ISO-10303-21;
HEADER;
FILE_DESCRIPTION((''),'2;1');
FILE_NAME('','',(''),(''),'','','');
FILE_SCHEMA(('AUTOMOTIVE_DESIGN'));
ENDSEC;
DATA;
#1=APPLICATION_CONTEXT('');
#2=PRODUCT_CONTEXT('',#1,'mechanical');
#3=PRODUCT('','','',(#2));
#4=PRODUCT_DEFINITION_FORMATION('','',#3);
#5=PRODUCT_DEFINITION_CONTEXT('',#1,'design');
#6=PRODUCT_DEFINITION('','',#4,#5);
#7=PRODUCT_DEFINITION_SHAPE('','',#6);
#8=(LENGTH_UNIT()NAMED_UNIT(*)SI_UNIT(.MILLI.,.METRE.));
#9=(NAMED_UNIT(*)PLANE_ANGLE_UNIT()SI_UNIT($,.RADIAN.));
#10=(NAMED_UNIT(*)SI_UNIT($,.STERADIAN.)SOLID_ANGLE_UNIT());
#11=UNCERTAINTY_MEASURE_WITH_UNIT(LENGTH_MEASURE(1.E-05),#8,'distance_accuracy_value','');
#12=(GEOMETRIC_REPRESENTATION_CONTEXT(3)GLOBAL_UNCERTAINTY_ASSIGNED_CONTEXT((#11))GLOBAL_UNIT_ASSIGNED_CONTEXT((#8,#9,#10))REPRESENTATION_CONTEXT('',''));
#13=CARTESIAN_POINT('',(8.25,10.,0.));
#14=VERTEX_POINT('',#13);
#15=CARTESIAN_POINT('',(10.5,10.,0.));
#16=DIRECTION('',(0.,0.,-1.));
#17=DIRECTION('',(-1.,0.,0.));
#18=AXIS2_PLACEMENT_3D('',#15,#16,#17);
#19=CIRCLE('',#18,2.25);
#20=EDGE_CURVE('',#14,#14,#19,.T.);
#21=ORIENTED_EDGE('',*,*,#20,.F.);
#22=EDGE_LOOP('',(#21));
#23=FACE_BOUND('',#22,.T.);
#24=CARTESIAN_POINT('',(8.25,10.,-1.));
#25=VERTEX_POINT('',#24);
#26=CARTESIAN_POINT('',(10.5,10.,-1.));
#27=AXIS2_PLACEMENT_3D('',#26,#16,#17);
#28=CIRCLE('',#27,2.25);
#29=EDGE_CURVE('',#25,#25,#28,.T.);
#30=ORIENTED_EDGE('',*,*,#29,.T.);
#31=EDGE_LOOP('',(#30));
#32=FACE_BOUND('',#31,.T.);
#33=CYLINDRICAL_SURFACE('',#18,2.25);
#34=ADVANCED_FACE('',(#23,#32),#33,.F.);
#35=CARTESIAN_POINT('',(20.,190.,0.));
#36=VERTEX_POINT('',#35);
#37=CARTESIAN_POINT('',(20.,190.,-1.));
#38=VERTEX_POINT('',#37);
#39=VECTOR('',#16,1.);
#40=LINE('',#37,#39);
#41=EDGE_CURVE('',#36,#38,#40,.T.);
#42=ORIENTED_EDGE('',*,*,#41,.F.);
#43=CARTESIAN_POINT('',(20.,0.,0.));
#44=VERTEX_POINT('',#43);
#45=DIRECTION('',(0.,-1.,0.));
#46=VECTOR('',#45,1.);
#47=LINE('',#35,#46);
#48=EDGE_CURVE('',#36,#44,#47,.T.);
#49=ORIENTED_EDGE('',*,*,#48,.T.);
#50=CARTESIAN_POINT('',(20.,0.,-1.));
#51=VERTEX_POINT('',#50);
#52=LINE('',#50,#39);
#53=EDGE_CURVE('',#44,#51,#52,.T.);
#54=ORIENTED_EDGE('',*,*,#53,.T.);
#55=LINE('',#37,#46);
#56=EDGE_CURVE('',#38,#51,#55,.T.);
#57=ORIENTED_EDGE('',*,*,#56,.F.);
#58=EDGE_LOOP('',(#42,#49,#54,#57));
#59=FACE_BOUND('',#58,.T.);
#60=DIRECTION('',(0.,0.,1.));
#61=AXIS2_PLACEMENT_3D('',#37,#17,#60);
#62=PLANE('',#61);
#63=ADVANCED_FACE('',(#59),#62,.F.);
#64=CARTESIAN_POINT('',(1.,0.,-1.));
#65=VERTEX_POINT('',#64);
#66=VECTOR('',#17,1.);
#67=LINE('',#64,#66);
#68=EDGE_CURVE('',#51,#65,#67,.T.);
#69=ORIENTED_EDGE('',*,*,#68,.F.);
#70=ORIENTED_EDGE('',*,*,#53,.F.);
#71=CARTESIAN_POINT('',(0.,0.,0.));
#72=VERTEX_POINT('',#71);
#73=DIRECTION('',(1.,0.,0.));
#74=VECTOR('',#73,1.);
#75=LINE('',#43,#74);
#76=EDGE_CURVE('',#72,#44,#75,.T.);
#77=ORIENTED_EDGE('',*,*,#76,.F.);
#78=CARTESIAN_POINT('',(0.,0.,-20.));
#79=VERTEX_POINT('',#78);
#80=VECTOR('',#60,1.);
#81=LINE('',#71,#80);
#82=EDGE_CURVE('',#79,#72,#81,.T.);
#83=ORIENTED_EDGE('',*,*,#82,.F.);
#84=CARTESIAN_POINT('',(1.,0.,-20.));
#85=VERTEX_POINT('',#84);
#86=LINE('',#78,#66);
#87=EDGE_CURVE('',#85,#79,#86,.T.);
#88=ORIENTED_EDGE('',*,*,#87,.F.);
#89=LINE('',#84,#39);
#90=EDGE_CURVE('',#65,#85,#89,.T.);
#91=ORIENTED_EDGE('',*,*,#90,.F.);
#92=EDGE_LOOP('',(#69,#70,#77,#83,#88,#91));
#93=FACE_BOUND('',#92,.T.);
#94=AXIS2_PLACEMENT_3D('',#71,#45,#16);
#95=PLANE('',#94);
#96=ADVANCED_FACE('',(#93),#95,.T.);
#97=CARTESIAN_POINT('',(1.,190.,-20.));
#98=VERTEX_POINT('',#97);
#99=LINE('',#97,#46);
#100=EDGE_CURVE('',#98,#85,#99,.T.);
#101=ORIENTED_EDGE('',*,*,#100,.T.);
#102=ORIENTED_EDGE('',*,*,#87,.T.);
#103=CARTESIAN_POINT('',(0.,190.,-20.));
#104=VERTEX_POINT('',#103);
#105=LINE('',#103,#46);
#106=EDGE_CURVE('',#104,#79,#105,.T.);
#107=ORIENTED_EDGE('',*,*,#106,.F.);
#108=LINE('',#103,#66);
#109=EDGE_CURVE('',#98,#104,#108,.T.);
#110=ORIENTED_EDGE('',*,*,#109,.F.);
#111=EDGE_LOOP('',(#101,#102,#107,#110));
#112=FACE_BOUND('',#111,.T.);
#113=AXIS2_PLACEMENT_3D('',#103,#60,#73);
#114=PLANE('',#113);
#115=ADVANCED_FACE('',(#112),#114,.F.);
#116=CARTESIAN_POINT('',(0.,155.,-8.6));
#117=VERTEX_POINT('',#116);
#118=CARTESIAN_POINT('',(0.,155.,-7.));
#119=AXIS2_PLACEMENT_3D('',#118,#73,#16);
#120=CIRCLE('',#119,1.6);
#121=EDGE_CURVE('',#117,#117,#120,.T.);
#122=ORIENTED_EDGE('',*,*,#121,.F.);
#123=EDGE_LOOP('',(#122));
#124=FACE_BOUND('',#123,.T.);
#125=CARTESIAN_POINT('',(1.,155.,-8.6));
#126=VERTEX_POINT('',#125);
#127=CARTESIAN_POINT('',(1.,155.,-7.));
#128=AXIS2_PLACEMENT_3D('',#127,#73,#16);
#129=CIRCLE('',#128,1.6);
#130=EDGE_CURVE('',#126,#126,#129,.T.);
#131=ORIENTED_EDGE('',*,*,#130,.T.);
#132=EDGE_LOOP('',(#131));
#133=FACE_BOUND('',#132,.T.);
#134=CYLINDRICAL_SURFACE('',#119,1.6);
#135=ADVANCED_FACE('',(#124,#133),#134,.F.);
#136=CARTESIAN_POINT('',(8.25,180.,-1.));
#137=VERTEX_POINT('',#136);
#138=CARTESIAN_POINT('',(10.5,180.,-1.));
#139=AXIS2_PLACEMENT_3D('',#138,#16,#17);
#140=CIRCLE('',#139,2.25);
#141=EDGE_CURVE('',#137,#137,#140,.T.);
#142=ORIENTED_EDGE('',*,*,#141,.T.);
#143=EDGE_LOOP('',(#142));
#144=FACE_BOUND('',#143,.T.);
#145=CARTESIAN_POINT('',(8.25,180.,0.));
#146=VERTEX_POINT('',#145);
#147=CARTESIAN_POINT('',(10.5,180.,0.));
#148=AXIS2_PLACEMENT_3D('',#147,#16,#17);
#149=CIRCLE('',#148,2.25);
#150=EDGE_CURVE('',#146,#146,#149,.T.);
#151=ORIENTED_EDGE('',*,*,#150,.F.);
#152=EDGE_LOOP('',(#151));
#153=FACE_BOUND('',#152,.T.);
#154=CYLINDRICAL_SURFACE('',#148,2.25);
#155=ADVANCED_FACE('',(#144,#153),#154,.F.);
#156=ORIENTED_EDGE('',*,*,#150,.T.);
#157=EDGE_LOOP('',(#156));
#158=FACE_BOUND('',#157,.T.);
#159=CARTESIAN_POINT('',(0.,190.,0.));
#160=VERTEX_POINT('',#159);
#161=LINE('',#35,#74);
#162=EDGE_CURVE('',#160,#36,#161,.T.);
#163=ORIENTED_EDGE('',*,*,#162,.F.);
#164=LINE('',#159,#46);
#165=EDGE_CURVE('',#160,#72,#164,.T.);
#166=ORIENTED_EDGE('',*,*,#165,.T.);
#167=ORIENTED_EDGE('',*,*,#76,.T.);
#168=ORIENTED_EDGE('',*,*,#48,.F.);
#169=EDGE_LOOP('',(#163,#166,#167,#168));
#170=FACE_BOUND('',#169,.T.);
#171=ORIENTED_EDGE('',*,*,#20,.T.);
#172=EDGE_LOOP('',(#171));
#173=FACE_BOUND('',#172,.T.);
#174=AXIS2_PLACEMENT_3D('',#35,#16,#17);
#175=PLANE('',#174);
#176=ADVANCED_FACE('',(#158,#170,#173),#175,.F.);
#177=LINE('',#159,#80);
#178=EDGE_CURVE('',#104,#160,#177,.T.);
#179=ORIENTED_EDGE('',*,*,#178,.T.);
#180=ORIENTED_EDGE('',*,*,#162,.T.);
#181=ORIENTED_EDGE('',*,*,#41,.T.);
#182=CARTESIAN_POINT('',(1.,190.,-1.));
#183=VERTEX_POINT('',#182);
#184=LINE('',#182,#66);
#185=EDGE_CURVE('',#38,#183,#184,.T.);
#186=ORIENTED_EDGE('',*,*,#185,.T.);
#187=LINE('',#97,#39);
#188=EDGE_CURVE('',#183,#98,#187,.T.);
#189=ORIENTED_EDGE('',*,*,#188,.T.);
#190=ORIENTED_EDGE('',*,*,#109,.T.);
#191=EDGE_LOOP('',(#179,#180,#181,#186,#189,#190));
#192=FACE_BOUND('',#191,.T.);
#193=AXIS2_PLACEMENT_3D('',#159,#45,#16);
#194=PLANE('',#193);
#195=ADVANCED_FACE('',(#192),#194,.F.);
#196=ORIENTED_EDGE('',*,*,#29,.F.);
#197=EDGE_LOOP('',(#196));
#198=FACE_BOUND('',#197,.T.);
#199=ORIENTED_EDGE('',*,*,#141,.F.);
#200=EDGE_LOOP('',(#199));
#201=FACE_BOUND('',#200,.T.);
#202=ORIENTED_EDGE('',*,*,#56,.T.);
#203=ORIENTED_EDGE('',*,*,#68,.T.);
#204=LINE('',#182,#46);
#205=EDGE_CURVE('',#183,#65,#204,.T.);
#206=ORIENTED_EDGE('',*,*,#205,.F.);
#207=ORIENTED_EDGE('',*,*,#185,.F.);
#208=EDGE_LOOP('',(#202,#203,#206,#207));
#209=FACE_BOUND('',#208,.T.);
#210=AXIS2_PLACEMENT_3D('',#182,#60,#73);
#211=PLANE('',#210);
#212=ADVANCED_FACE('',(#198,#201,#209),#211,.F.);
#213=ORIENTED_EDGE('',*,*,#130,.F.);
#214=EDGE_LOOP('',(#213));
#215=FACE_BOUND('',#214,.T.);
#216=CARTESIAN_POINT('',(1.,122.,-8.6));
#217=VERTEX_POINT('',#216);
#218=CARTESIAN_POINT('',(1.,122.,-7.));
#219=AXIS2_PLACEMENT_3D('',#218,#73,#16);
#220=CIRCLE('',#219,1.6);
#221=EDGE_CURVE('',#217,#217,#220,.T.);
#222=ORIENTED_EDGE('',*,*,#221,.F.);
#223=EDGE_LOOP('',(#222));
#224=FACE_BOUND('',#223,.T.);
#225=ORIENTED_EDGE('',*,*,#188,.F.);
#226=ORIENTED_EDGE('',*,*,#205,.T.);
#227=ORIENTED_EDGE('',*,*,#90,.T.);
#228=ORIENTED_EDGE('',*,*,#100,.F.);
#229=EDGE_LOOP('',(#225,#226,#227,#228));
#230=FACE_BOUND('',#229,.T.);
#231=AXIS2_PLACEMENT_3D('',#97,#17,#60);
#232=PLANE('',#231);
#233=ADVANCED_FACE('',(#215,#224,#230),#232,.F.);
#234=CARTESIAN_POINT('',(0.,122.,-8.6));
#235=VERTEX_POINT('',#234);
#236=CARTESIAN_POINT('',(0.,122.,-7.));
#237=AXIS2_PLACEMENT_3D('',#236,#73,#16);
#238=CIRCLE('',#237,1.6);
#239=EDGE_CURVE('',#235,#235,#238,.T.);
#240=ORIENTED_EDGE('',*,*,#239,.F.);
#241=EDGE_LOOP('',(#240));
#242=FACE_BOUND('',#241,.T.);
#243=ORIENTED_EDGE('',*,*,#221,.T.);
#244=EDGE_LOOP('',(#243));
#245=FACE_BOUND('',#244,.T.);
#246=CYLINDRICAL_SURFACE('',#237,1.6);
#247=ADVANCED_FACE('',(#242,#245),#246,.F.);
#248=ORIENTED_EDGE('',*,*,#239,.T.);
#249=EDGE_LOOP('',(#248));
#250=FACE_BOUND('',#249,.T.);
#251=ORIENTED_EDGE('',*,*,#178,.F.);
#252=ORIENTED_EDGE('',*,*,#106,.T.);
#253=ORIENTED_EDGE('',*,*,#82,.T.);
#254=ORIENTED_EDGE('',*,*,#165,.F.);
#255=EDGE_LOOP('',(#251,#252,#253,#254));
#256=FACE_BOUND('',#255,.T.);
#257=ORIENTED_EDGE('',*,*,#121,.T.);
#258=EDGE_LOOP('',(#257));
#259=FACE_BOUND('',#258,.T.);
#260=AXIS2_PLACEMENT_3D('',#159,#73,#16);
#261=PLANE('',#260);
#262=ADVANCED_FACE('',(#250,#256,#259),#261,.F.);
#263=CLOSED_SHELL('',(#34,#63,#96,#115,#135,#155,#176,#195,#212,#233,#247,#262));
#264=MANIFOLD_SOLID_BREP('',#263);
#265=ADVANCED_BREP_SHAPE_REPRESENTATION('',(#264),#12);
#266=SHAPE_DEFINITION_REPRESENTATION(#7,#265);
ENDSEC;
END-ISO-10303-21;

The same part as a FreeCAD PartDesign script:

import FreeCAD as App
import Part
import Sketcher


def add_polygon(sketch, points):
    """Adds a closed chain of lines whose ends are joined by coincident constraints."""
    first, n = sketch.GeometryCount, len(points)
    for a, b in zip(points, points[1:] + points[:1]):
        sketch.addGeometry(Part.LineSegment(App.Vector(*a, 0), App.Vector(*b, 0)), False)
    for i in range(n):
        sketch.addConstraint(Sketcher.Constraint("Coincident", first + i, 2, first + (i + 1) % n, 1))

doc = App.newDocument("Part")
body = doc.addObject("PartDesign::Body", "Body")

# Sketch on XZ plane
sketch1 = doc.addObject("Sketcher::SketchObject", "Sketch")
body.addObject(sketch1)
sketch1.AttachmentSupport = (doc.XZ_Plane, [""])
sketch1.MapMode = "FlatFace"
add_polygon(sketch1, [(0, -20), (0, 0), (20, 0), (20, -1), (1, -1), (1, -20)])  # lines 0-5
sketch1.addConstraint(Sketcher.Constraint("Vertical", 0))
sketch1.addConstraint(Sketcher.Constraint("Horizontal", 1))
sketch1.addConstraint(Sketcher.Constraint("Vertical", 2))
sketch1.addConstraint(Sketcher.Constraint("Horizontal", 3))
sketch1.addConstraint(Sketcher.Constraint("Vertical", 4))
sketch1.addConstraint(Sketcher.Constraint("Horizontal", 5))
sketch1.addConstraint(Sketcher.Constraint("Coincident", 0, 2, -1, 1))
sketch1.addConstraint(Sketcher.Constraint("Equal", 1, 0))
sketch1.addConstraint(Sketcher.Constraint("Equal", 5, 2))
sketch1.addConstraint(Sketcher.Constraint("DistanceX", 1, 1, 1, 2, 20.0))
sketch1.addConstraint(Sketcher.Constraint("DistanceX", 3, 2, 3, 1, 19.0))
pad1 = doc.addObject("PartDesign::Pad", "Pad")
body.addObject(pad1)
pad1.Profile = sketch1
pad1.Length = 190
pad1.Reversed = True

# Sketch on XY plane
sketch2 = doc.addObject("Sketcher::SketchObject", "Sketch001")
body.addObject(sketch2)
sketch2.AttachmentSupport = (doc.XY_Plane, [""])
sketch2.MapMode = "FlatFace"
sketch2.AttachmentOffset = App.Placement(App.Vector(0, 0, -1), App.Rotation())
sketch2.addGeometry(Part.Circle(App.Vector(10.5, 10, 0), App.Vector(0, 0, 1), 2.25), False)
sketch2.addGeometry(Part.Circle(App.Vector(10.5, 180, 0), App.Vector(0, 0, 1), 2.25), False)
sketch2.addConstraint(Sketcher.Constraint("Equal", 0, 1))
sketch2.addConstraint(Sketcher.Constraint("Vertical", 0, 3, 1, 3))
sketch2.addConstraint(Sketcher.Constraint("Diameter", 0, 4.5))
sketch2.addConstraint(Sketcher.Constraint("DistanceY", -1, 1, 0, 3, 10.0))
sketch2.addConstraint(Sketcher.Constraint("DistanceY", -1, 1, 1, 3, 180.0))
sketch2.addConstraint(Sketcher.Constraint("DistanceX", -1, 1, 0, 3, 10.5))
pocket1 = doc.addObject("PartDesign::Pocket", "Pocket")
body.addObject(pocket1)
pocket1.Profile = sketch2
pocket1.Type = "ThroughAll"
pocket1.Reversed = True

# Sketch on YZ plane
sketch3 = doc.addObject("Sketcher::SketchObject", "Sketch002")
body.addObject(sketch3)
sketch3.AttachmentSupport = (doc.YZ_Plane, [""])
sketch3.MapMode = "FlatFace"
sketch3.AttachmentOffset = App.Placement(App.Vector(0, 0, 1), App.Rotation())
sketch3.addGeometry(Part.Circle(App.Vector(155, -7, 0), App.Vector(0, 0, 1), 1.6), False)
sketch3.addGeometry(Part.Circle(App.Vector(122, -7, 0), App.Vector(0, 0, 1), 1.6), False)
sketch3.addConstraint(Sketcher.Constraint("Equal", 0, 1))
sketch3.addConstraint(Sketcher.Constraint("Horizontal", 0, 3, 1, 3))
sketch3.addConstraint(Sketcher.Constraint("Diameter", 0, 3.2))
sketch3.addConstraint(Sketcher.Constraint("DistanceX", -1, 1, 0, 3, 155.0))
sketch3.addConstraint(Sketcher.Constraint("DistanceY", 0, 3, -1, 1, 7.0))
sketch3.addConstraint(Sketcher.Constraint("DistanceX", -1, 1, 1, 3, 122.0))
pocket2 = doc.addObject("PartDesign::Pocket", "Pocket001")
body.addObject(pocket2)
pocket2.Profile = sketch3
pocket2.Type = "ThroughAll"

doc.recompute()
